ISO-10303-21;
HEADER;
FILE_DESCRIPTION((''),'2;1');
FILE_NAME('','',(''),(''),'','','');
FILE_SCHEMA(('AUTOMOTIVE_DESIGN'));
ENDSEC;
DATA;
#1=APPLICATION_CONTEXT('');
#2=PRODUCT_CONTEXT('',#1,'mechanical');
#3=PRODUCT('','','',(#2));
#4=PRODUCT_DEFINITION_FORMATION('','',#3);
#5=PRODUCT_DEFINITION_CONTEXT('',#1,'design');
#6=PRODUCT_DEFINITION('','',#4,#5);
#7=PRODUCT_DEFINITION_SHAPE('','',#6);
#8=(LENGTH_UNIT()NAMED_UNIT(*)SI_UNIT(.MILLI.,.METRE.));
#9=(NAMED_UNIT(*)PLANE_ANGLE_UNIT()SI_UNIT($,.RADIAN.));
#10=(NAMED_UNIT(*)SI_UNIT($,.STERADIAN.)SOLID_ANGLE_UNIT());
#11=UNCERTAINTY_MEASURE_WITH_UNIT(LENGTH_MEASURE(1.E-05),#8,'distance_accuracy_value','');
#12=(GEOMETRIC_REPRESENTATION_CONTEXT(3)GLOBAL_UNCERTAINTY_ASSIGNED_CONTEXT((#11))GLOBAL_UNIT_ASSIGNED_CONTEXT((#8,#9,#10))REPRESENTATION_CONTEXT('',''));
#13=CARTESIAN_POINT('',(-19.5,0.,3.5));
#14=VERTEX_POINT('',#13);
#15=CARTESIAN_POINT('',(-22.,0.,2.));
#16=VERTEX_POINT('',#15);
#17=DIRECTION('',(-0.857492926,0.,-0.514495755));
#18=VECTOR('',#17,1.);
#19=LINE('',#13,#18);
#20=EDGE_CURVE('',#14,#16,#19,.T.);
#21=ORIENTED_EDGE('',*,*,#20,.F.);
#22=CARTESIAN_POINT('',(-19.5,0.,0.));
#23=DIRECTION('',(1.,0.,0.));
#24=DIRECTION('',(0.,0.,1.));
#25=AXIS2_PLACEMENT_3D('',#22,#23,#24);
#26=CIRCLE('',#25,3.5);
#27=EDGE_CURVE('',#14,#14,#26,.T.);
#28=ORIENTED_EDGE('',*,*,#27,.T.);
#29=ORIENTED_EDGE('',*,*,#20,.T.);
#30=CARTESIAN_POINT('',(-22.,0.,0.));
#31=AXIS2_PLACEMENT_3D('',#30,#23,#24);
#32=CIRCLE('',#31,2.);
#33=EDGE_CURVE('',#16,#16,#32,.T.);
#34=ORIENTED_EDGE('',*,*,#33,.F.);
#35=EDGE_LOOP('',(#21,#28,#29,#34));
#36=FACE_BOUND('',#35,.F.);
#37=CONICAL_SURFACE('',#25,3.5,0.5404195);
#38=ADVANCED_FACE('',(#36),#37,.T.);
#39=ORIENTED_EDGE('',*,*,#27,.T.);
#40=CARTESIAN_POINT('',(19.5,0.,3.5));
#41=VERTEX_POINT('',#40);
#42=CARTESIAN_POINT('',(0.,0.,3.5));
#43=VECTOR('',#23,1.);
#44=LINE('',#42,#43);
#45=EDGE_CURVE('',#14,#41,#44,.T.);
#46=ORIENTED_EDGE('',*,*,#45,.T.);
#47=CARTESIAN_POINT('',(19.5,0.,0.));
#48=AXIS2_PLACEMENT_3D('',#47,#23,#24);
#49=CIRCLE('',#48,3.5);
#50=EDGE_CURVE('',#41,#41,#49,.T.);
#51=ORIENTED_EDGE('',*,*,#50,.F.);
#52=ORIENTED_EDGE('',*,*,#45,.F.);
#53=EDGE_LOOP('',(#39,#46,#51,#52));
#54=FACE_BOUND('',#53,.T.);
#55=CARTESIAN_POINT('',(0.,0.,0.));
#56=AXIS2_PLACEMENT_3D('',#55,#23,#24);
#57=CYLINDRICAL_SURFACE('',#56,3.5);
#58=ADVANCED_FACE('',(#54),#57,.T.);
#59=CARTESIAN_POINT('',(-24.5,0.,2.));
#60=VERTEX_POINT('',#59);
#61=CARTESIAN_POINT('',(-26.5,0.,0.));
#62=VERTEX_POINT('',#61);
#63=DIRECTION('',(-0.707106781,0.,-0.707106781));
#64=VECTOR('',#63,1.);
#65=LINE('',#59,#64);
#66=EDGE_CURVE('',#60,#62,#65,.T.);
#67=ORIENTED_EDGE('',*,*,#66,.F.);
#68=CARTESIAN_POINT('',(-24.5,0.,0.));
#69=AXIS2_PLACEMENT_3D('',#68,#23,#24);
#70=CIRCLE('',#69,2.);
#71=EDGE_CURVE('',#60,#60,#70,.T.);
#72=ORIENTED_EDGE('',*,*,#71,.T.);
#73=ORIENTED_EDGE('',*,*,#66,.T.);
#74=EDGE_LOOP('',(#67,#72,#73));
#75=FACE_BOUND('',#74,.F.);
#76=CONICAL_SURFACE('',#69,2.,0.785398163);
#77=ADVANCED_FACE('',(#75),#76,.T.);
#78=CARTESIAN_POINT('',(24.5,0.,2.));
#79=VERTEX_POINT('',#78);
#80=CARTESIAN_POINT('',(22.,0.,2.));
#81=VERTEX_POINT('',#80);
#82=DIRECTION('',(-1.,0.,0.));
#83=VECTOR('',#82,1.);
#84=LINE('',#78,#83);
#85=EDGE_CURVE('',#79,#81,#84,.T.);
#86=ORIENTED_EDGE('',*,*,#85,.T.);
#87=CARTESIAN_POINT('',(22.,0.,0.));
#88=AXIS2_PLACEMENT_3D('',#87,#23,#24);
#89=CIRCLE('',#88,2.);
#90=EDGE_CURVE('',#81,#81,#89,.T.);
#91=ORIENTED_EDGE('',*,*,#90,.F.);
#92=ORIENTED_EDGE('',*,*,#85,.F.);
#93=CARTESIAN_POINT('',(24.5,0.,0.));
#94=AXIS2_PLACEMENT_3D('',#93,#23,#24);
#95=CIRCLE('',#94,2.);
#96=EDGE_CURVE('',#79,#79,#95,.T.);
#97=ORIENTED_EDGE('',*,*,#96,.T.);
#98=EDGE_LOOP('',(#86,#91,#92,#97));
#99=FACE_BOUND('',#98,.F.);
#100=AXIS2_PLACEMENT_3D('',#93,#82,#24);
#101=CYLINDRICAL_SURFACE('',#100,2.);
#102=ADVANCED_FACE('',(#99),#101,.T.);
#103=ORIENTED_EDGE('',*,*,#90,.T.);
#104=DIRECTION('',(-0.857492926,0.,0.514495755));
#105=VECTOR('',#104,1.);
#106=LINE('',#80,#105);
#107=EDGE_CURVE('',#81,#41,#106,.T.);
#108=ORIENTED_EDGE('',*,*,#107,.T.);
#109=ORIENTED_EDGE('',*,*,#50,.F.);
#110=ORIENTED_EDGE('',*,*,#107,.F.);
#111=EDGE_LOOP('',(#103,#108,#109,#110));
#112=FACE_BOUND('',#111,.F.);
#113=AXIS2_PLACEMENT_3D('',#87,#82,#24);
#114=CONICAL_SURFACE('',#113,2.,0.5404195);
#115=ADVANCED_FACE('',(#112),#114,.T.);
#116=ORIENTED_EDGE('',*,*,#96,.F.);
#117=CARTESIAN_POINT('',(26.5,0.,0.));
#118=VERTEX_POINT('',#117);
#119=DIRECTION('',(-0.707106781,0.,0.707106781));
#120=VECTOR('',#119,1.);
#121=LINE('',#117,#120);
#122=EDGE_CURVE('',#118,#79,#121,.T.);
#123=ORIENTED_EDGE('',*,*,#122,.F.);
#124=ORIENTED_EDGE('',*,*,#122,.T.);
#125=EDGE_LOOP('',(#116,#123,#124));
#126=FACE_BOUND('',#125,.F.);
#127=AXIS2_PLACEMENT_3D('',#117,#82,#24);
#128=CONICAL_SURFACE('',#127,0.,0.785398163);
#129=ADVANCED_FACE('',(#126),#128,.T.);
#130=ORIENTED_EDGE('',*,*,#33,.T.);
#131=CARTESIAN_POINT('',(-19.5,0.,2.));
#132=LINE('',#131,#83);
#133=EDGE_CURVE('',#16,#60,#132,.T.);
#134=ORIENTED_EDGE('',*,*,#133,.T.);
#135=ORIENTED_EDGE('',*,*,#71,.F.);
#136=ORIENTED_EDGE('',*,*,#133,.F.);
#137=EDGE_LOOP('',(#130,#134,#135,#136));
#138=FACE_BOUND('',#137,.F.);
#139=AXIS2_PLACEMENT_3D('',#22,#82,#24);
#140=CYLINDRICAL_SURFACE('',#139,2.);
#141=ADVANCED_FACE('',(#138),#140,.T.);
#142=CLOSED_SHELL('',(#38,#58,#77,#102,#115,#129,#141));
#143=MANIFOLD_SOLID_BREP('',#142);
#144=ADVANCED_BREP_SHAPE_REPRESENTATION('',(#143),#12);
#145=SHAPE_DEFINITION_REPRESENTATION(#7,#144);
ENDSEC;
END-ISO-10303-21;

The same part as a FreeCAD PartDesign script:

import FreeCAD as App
import Part
import Sketcher
from FreeCAD import Vector
Q = App.Units.Quantity

doc = App.newDocument("Part")
body = doc.addObject("PartDesign::Body", "Body")

# Sketch on XZ plane
sketch1 = body.newObject("Sketcher::SketchObject", "Sketch")
sketch1.AttachmentSupport = (doc.getObject("XZ_Plane"), [""])
sketch1.MapMode = "FlatFace"
sketch1.addGeometry([
    Part.LineSegment(Vector(-24.5, 2, 0), Vector(-26.5, 0, 0)),  # 0
    Part.LineSegment(Vector(-26.5, 0, 0), Vector(26.5, 0, 0)),  # 1
    Part.LineSegment(Vector(26.5, 0, 0), Vector(24.5, 2, 0)),  # 2
    Part.LineSegment(Vector(24.5, 2, 0), Vector(22, 2, 0)),  # 3
    Part.LineSegment(Vector(22, 2, 0), Vector(19.5, 3.5, 0)),  # 4
    Part.LineSegment(Vector(19.5, 3.5, 0), Vector(-19.5, 3.5, 0)),  # 5
    Part.LineSegment(Vector(-19.5, 3.5, 0), Vector(-22, 2, 0)),  # 6
    Part.LineSegment(Vector(-22, 2, 0), Vector(-24.5, 2, 0)),  # 7
], False)
sketch1.addConstraint([
    Sketcher.Constraint("Coincident", 0, 2, 1, 1),
    Sketcher.Constraint("Coincident", 1, 2, 2, 1),
    Sketcher.Constraint("Coincident", 2, 2, 3, 1),
    Sketcher.Constraint("Coincident", 3, 2, 4, 1),
    Sketcher.Constraint("Coincident", 4, 2, 5, 1),
    Sketcher.Constraint("Coincident", 5, 2, 6, 1),
    Sketcher.Constraint("Coincident", 6, 2, 7, 1),
    Sketcher.Constraint("Coincident", 7, 2, 0, 1),
    Sketcher.Constraint("Horizontal", 1),
    Sketcher.Constraint("Horizontal", 3),
    Sketcher.Constraint("Horizontal", 5),
    Sketcher.Constraint("Horizontal", 7),
    Sketcher.Constraint("Symmetric", 0, 2, 1, 2, -1, 1),
    Sketcher.Constraint("Symmetric", 3, 2, 6, 2, -2),
    Sketcher.Constraint("Perpendicular", 0, 2),
    Sketcher.Constraint("Equal", 3, 7),
    Sketcher.Constraint("Equal", 4, 6),
    Sketcher.Constraint("DistanceX", 1, 1, 1, 2, Q("53 mm")),
    Sketcher.Constraint("DistanceX", 5, 2, 5, 1, Q("39 mm")),
    Sketcher.Constraint("DistanceX", 3, 2, 3, 1, Q("2.5 mm")),
    Sketcher.Constraint("DistanceY", -1, 1, 2, 2, Q("2 mm")),
    Sketcher.Constraint("DistanceY", -1, 1, 4, 2, Q("3.5 mm")),
])
revolution = body.newObject("PartDesign::Revolution", "Revolution")
revolution.Profile = sketch1
revolution.ReferenceAxis = (sketch1, ["H_Axis"])
revolution.Angle = 360

doc.recompute()
